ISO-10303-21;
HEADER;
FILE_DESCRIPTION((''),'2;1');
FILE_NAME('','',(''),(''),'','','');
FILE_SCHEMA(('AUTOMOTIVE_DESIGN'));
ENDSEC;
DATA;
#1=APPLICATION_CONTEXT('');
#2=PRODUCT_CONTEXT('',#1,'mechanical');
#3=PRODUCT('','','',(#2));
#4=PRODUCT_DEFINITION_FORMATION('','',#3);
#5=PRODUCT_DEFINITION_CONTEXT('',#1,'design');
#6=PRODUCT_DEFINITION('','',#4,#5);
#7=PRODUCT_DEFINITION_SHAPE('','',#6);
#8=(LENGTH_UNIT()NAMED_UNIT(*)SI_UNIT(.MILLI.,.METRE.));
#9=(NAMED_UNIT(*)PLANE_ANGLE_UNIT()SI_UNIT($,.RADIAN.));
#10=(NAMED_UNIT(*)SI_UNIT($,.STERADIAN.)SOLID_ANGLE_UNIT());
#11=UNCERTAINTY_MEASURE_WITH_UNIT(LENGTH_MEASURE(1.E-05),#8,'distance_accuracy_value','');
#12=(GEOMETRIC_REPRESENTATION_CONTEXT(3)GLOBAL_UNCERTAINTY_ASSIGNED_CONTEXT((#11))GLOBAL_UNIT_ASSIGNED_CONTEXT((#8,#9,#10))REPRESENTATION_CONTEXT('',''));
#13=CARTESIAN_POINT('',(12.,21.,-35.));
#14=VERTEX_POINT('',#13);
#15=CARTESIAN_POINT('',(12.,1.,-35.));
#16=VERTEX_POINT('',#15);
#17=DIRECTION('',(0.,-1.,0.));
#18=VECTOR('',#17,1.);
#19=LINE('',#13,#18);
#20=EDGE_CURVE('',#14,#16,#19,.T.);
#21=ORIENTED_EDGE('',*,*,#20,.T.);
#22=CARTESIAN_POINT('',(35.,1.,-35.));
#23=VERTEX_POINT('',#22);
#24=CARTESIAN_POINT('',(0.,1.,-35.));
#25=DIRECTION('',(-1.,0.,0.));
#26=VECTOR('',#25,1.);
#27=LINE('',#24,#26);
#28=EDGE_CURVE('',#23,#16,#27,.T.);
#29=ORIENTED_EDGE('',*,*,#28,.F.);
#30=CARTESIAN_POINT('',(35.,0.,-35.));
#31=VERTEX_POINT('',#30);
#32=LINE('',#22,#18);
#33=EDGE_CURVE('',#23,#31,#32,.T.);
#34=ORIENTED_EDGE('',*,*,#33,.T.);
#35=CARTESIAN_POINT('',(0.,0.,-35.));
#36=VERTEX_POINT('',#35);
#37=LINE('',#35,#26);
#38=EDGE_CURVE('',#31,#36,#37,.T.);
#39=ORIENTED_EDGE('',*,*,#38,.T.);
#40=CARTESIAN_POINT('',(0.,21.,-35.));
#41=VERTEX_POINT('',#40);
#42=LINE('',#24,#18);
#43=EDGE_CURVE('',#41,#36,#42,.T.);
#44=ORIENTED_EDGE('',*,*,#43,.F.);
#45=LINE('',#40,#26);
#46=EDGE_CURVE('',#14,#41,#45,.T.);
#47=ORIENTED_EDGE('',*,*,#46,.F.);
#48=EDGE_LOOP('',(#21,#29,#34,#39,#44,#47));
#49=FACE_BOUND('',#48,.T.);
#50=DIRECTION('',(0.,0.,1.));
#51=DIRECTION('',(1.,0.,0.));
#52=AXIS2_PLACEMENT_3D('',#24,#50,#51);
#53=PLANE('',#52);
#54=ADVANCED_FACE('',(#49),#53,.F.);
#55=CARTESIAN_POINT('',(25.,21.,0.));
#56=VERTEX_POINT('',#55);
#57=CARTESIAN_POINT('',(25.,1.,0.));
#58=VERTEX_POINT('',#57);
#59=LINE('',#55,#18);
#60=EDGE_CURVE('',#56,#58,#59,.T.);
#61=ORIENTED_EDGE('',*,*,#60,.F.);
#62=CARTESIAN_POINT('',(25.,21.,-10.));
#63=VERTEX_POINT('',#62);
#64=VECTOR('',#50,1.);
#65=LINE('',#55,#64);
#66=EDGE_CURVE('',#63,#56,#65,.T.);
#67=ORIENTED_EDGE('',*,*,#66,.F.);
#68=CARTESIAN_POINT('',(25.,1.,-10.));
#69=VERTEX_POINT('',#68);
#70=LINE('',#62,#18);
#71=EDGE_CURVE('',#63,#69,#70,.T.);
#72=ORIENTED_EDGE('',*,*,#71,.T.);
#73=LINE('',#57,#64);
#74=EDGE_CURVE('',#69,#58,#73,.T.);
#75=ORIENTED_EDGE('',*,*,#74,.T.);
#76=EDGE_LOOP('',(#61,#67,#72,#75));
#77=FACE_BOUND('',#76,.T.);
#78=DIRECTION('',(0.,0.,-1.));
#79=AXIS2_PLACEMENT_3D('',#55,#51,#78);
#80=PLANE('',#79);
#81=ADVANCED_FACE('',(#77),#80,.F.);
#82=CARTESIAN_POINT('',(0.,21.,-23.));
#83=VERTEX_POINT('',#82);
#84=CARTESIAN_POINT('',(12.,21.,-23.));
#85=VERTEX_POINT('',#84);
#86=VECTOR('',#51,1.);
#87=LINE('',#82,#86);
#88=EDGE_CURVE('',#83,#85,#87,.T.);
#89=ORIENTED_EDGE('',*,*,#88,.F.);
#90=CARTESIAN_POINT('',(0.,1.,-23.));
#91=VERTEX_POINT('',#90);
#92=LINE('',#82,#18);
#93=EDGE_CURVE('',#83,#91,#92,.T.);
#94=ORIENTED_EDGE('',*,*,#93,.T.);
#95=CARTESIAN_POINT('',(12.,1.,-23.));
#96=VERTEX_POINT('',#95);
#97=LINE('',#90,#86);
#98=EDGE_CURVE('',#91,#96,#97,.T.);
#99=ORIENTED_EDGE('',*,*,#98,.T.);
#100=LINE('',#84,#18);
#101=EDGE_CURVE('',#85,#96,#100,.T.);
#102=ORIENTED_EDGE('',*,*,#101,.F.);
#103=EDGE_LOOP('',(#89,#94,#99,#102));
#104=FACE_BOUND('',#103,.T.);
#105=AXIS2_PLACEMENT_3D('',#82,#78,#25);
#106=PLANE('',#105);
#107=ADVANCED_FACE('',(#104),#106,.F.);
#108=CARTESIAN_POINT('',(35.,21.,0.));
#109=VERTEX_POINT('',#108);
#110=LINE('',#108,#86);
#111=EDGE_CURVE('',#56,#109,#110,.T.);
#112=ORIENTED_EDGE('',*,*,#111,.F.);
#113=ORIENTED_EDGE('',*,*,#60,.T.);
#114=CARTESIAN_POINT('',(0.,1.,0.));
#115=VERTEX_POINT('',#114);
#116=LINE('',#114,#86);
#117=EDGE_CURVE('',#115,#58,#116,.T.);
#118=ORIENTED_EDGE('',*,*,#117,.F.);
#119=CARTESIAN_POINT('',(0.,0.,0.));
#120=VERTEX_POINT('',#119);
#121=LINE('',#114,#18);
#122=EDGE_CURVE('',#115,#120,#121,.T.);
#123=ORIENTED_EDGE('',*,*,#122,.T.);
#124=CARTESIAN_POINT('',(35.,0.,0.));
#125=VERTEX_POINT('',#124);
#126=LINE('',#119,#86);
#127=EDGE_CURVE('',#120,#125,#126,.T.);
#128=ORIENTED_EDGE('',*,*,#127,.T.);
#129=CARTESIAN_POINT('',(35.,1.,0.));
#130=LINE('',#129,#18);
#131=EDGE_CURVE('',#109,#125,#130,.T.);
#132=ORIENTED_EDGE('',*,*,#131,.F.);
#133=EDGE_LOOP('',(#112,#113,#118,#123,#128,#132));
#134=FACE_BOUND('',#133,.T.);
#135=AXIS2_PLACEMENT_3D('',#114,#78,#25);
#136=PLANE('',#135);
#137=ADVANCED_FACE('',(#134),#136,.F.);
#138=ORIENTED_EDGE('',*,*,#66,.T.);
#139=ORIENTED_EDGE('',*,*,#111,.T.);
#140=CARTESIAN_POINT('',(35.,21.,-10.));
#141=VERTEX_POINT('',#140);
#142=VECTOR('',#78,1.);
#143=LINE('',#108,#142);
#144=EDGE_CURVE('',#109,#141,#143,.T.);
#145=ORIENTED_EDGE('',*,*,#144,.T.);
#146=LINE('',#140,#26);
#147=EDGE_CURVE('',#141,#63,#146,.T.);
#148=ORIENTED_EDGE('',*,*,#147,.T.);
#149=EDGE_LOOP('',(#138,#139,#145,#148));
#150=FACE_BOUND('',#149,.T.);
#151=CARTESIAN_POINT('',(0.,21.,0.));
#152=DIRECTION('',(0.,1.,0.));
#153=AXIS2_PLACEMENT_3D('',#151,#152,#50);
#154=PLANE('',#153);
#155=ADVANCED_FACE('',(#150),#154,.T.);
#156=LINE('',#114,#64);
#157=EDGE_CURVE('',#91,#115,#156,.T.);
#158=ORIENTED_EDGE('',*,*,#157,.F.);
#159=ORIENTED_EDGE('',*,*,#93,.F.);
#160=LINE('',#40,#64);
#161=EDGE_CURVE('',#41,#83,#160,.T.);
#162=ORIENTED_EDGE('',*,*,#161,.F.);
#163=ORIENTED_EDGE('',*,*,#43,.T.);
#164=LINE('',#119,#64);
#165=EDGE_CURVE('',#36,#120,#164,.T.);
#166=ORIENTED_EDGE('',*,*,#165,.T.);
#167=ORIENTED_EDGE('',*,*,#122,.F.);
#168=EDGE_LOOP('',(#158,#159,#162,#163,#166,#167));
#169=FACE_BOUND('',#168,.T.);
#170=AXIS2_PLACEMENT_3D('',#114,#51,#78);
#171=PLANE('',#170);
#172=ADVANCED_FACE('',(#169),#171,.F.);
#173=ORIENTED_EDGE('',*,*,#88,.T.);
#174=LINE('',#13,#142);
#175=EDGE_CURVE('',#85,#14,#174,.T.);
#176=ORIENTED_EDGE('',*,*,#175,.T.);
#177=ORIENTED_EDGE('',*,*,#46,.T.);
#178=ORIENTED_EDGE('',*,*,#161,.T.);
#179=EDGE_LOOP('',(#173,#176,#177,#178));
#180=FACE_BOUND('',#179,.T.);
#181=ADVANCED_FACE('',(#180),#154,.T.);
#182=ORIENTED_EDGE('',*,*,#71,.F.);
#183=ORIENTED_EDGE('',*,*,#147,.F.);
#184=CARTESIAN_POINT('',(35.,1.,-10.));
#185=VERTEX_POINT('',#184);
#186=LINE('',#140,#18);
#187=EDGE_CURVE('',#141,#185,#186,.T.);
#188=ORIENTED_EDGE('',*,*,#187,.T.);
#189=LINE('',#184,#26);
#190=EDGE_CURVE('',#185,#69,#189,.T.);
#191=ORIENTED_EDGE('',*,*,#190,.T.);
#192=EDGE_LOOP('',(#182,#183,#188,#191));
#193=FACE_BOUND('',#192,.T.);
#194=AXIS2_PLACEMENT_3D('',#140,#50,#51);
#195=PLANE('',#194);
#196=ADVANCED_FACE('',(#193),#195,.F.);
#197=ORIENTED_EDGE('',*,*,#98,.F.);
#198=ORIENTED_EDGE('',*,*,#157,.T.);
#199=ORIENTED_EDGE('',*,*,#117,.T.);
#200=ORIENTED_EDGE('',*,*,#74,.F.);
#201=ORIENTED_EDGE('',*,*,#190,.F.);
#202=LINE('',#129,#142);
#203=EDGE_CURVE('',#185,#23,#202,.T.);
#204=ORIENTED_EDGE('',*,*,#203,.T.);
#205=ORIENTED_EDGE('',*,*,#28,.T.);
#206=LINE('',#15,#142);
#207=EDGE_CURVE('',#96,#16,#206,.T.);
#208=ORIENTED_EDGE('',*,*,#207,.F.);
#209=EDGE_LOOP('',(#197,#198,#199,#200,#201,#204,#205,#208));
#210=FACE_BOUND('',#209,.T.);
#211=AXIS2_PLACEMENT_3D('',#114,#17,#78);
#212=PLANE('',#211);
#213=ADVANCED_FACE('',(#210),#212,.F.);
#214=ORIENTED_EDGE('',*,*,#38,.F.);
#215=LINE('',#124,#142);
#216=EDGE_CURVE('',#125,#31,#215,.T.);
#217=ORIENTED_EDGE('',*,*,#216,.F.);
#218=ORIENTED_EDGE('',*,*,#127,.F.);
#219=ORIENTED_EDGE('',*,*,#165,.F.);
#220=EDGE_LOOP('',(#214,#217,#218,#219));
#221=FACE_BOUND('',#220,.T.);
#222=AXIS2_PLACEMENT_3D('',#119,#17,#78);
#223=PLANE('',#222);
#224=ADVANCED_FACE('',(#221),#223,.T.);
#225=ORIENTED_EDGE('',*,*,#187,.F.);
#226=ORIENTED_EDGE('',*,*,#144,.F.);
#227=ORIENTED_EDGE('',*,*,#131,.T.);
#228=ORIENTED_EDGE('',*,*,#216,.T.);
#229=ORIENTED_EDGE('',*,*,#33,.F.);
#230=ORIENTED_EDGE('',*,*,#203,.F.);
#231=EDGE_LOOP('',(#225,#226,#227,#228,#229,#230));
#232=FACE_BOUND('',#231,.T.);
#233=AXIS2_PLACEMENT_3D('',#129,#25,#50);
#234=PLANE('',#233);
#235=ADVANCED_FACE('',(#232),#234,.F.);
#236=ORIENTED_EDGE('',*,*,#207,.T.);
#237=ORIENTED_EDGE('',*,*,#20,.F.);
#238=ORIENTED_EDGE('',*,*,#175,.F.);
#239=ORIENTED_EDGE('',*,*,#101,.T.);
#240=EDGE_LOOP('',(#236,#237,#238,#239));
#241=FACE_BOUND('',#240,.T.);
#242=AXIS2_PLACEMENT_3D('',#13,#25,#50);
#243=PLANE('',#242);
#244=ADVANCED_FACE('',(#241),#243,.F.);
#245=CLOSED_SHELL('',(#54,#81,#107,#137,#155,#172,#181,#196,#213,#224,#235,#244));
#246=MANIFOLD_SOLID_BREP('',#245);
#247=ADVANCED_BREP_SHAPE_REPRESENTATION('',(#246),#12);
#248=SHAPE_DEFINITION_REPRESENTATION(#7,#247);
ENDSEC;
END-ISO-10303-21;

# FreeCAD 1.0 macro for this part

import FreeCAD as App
import Part
import Sketcher

doc = App.newDocument("Part")
body = doc.addObject("PartDesign::Body", "Body")

# Sketch on XZ plane
sketch1 = body.newObject("Sketcher::SketchObject", "Sketch")
sketch1.AttachmentSupport = (doc.getObject("XZ_Plane"), [""])
sketch1.MapMode = "FlatFace"
sketch1.addGeometry([
    Part.LineSegment(App.Vector(0, -35, 0), App.Vector(0, 0, 0)),
    Part.LineSegment(App.Vector(0, 0, 0), App.Vector(35, 0, 0)),
    Part.LineSegment(App.Vector(35, 0, 0), App.Vector(35, -35, 0)),
    Part.LineSegment(App.Vector(35, -35, 0), App.Vector(0, -35, 0)),
], False)
sketch1.addConstraint([
    Sketcher.Constraint("Coincident", 0, 2, 1, 1),
    Sketcher.Constraint("Coincident", 1, 2, 2, 1),
    Sketcher.Constraint("Coincident", 2, 2, 3, 1),
    Sketcher.Constraint("Coincident", 3, 2, 0, 1),
    Sketcher.Constraint("Vertical", 0),
    Sketcher.Constraint("Horizontal", 1),
    Sketcher.Constraint("Vertical", 2),
    Sketcher.Constraint("Horizontal", 3),
    Sketcher.Constraint("Coincident", 0, 2, -1, 1),
    Sketcher.Constraint("Equal", 3, 0),
    Sketcher.Constraint("DistanceX", 1, 1, 1, 2, 35.0),
])
pad1 = body.newObject("PartDesign::Pad", "Pad")
pad1.Profile = sketch1
pad1.Length = 1
pad1.Reversed = True

# Sketch on XZ plane
sketch2 = body.newObject("Sketcher::SketchObject", "Sketch001")
sketch2.AttachmentSupport = (doc.getObject("XZ_Plane"), [""])
sketch2.MapMode = "FlatFace"
sketch2.AttachmentOffset = App.Placement(App.Vector(0, 0, -1), App.Rotation())
sketch2.addGeometry([
    Part.LineSegment(App.Vector(0, -35, 0), App.Vector(0, -23, 0)),  # 0
    Part.LineSegment(App.Vector(0, -23, 0), App.Vector(12, -23, 0)),  # 1
    Part.LineSegment(App.Vector(12, -23, 0), App.Vector(12, -35, 0)),  # 2
    Part.LineSegment(App.Vector(12, -35, 0), App.Vector(0, -35, 0)),  # 3
    Part.LineSegment(App.Vector(25, -10, 0), App.Vector(25, 0, 0)),  # 4
    Part.LineSegment(App.Vector(25, 0, 0), App.Vector(35, 0, 0)),  # 5
    Part.LineSegment(App.Vector(35, 0, 0), App.Vector(35, -10, 0)),  # 6
    Part.LineSegment(App.Vector(35, -10, 0), App.Vector(25, -10, 0)),  # 7
], False)
sketch2.addConstraint([
    Sketcher.Constraint("Coincident", 0, 2, 1, 1),
    Sketcher.Constraint("Coincident", 1, 2, 2, 1),
    Sketcher.Constraint("Coincident", 2, 2, 3, 1),
    Sketcher.Constraint("Coincident", 3, 2, 0, 1),
    Sketcher.Constraint("Coincident", 4, 2, 5, 1),
    Sketcher.Constraint("Coincident", 5, 2, 6, 1),
    Sketcher.Constraint("Coincident", 6, 2, 7, 1),
    Sketcher.Constraint("Coincident", 7, 2, 4, 1),
    Sketcher.Constraint("Vertical", 0),
    Sketcher.Constraint("Horizontal", 1),
    Sketcher.Constraint("Vertical", 2),
    Sketcher.Constraint("Horizontal", 3),
    Sketcher.Constraint("Vertical", 4),
    Sketcher.Constraint("Horizontal", 5),
    Sketcher.Constraint("Vertical", 6),
    Sketcher.Constraint("Horizontal", 7),
    Sketcher.Constraint("PointOnObject", 0, 2, -2),
    Sketcher.Constraint("PointOnObject", 4, 2, -1),
    Sketcher.Constraint("Equal", 3, 0),
    Sketcher.Constraint("Equal", 7, 4),
    Sketcher.Constraint("DistanceX", 1, 1, 1, 2, 12.0),
    Sketcher.Constraint("DistanceX", 5, 1, 5, 2, 10.0),
    Sketcher.Constraint("DistanceY", 0, 2, -1, 1, 23.0),
    Sketcher.Constraint("DistanceX", -1, 1, 4, 2, 25.0),
])
pad2 = body.newObject("PartDesign::Pad", "Pad001")
pad2.Profile = sketch2
pad2.Length = 20
pad2.Reversed = True

doc.recompute()
